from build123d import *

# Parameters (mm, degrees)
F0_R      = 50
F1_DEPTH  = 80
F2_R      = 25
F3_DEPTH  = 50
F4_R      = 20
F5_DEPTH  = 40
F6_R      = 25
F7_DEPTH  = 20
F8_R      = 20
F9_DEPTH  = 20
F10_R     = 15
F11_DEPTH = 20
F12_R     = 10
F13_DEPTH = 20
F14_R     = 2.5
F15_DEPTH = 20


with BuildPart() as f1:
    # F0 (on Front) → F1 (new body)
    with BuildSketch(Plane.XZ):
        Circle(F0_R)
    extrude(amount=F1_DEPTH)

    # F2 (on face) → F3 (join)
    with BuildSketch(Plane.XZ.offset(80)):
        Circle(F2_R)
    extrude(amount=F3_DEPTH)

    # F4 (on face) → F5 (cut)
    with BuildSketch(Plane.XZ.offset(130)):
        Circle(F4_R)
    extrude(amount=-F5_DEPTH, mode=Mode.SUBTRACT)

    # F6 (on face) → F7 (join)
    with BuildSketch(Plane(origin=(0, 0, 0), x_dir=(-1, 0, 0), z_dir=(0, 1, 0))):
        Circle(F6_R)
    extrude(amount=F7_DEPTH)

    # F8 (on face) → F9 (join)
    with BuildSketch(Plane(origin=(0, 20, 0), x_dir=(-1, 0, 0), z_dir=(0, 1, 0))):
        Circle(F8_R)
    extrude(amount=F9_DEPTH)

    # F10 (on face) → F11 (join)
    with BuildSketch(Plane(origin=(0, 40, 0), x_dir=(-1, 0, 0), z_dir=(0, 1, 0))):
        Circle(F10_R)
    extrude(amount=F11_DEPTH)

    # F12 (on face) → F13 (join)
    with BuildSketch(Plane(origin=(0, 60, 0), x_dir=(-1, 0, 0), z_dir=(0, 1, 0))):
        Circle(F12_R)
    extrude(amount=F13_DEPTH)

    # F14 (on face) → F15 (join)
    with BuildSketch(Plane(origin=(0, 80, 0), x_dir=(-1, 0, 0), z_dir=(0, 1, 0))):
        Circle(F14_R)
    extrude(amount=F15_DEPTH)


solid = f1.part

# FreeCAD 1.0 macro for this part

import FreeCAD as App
import Part
import Sketcher
from FreeCAD import Vector
Q = App.Units.Quantity

doc = App.newDocument("Part")
body = doc.addObject("PartDesign::Body", "Body")

sketch1 = doc.addObject("Sketcher::SketchObject", "Sketch")
body.addObject(sketch1)
sketch1.AttachmentSupport = (doc.XZ_Plane, [""])
sketch1.MapMode = "FlatFace"
sketch1.addGeometry(Part.Circle(Vector(0, 0, 0), Vector(0, 0, 1), 50), False)
sketch1.addConstraint(Sketcher.Constraint("Coincident", 0, 3, -1, 1))
sketch1.addConstraint(Sketcher.Constraint("Diameter", 0, Q("100 mm")))
pad1 = doc.addObject("PartDesign::Pad", "Pad")
body.addObject(pad1)
pad1.Profile = sketch1
pad1.Length = 80

sketch2 = doc.addObject("Sketcher::SketchObject", "Sketch001")
body.addObject(sketch2)
sketch2.AttachmentSupport = (doc.XZ_Plane, [""])
sketch2.MapMode = "FlatFace"
sketch2.AttachmentOffset = App.Placement(Vector(0, 0, 80), App.Rotation())
sketch2.addGeometry(Part.Circle(Vector(0, 0, 0), Vector(0, 0, 1), 25), False)
sketch2.addConstraint(Sketcher.Constraint("Coincident", 0, 3, -1, 1))
sketch2.addConstraint(Sketcher.Constraint("Diameter", 0, Q("50 mm")))
pad2 = doc.addObject("PartDesign::Pad", "Pad001")
body.addObject(pad2)
pad2.Profile = sketch2
pad2.Length = 50

sketch3 = doc.addObject("Sketcher::SketchObject", "Sketch002")
body.addObject(sketch3)
sketch3.AttachmentSupport = (doc.XZ_Plane, [""])
sketch3.MapMode = "FlatFace"
sketch3.AttachmentOffset = App.Placement(Vector(0, 0, 130), App.Rotation())
sketch3.addGeometry(Part.Circle(Vector(0, 0, 0), Vector(0, 0, 1), 20), False)
sketch3.addConstraint(Sketcher.Constraint("Coincident", 0, 3, -1, 1))
sketch3.addConstraint(Sketcher.Constraint("Diameter", 0, Q("40 mm")))
pocket1 = doc.addObject("PartDesign::Pocket", "Pocket")
body.addObject(pocket1)
pocket1.Profile = sketch3
pocket1.Length = 40

sketch4 = doc.addObject("Sketcher::SketchObject", "Sketch003")
body.addObject(sketch4)
sketch4.AttachmentSupport = (doc.XZ_Plane, [""])
sketch4.MapMode = "FlatFace"
sketch4.addGeometry(Part.Circle(Vector(0, 0, 0), Vector(0, 0, 1), 25), False)
sketch4.addConstraint(Sketcher.Constraint("Coincident", 0, 3, -1, 1))
sketch4.addConstraint(Sketcher.Constraint("Diameter", 0, Q("50 mm")))
pad3 = doc.addObject("PartDesign::Pad", "Pad002")
body.addObject(pad3)
pad3.Profile = sketch4
pad3.Length = 20
pad3.Reversed = True

sketch5 = doc.addObject("Sketcher::SketchObject", "Sketch004")
body.addObject(sketch5)
sketch5.AttachmentSupport = (doc.XZ_Plane, [""])
sketch5.MapMode = "FlatFace"
sketch5.AttachmentOffset = App.Placement(Vector(0, 0, -20), App.Rotation())
sketch5.addGeometry(Part.Circle(Vector(0, 0, 0), Vector(0, 0, 1), 20), False)
sketch5.addConstraint(Sketcher.Constraint("Coincident", 0, 3, -1, 1))
sketch5.addConstraint(Sketcher.Constraint("Diameter", 0, Q("40 mm")))
pad4 = doc.addObject("PartDesign::Pad", "Pad003")
body.addObject(pad4)
pad4.Profile = sketch5
pad4.Length = 20
pad4.Reversed = True

sketch6 = doc.addObject("Sketcher::SketchObject", "Sketch005")
body.addObject(sketch6)
sketch6.AttachmentSupport = (doc.XZ_Plane, [""])
sketch6.MapMode = "FlatFace"
sketch6.AttachmentOffset = App.Placement(Vector(0, 0, -40), App.Rotation())
sketch6.addGeometry(Part.Circle(Vector(0, 0, 0), Vector(0, 0, 1), 15), False)
sketch6.addConstraint(Sketcher.Constraint("Coincident", 0, 3, -1, 1))
sketch6.addConstraint(Sketcher.Constraint("Diameter", 0, Q("30 mm")))
pad5 = doc.addObject("PartDesign::Pad", "Pad004")
body.addObject(pad5)
pad5.Profile = sketch6
pad5.Length = 20
pad5.Reversed = True

sketch7 = doc.addObject("Sketcher::SketchObject", "Sketch006")
body.addObject(sketch7)
sketch7.AttachmentSupport = (doc.XZ_Plane, [""])
sketch7.MapMode = "FlatFace"
sketch7.AttachmentOffset = App.Placement(Vector(0, 0, -60), App.Rotation())
sketch7.addGeometry(Part.Circle(Vector(0, 0, 0), Vector(0, 0, 1), 10), False)
sketch7.addConstraint(Sketcher.Constraint("Coincident", 0, 3, -1, 1))
sketch7.addConstraint(Sketcher.Constraint("Diameter", 0, Q("20 mm")))
pad6 = doc.addObject("PartDesign::Pad", "Pad005")
body.addObject(pad6)
pad6.Profile = sketch7
pad6.Length = 20
pad6.Reversed = True

sketch8 = doc.addObject("Sketcher::SketchObject", "Sketch007")
body.addObject(sketch8)
sketch8.AttachmentSupport = (doc.XZ_Plane, [""])
sketch8.MapMode = "FlatFace"
sketch8.AttachmentOffset = App.Placement(Vector(0, 0, -80), App.Rotation())
sketch8.addGeometry(Part.Circle(Vector(0, 0, 0), Vector(0, 0, 1), 2.5), False)
sketch8.addConstraint(Sketcher.Constraint("Coincident", 0, 3, -1, 1))
sketch8.addConstraint(Sketcher.Constraint("Diameter", 0, Q("5 mm")))
pad7 = doc.addObject("PartDesign::Pad", "Pad006")
body.addObject(pad7)
pad7.Profile = sketch8
pad7.Length = 20
pad7.Reversed = True

doc.recompute()
